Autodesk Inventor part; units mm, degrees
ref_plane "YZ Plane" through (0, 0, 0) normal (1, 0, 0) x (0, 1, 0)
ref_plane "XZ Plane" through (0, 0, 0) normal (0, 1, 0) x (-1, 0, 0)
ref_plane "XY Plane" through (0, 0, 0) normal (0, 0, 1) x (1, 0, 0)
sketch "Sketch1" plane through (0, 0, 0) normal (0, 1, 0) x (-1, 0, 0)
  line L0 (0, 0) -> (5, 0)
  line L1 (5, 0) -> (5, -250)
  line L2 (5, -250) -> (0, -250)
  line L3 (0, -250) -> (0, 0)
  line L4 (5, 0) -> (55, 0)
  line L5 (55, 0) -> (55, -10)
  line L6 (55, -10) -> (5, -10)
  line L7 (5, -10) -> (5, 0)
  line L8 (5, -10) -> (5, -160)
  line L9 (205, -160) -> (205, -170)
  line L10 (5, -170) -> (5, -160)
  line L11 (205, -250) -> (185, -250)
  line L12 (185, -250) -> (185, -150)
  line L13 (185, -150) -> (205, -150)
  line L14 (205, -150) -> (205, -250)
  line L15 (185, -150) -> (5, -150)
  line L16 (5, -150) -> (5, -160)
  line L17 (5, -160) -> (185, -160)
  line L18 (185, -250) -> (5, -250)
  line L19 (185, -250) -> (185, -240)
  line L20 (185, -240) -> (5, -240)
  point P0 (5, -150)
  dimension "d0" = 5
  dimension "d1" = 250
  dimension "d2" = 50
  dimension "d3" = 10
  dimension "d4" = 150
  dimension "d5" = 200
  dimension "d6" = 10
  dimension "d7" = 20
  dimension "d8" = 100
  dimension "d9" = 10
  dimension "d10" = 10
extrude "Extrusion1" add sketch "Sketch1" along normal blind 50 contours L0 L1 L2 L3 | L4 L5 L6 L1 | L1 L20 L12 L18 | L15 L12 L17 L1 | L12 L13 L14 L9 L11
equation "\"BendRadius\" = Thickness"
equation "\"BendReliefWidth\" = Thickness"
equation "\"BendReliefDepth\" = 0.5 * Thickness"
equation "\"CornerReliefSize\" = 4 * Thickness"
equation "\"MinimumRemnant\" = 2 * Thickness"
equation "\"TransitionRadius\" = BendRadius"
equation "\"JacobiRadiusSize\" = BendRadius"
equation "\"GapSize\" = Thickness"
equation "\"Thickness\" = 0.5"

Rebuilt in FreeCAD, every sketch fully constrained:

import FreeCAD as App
import Part
import Sketcher
from FreeCAD import Vector
Q = App.Units.Quantity


def add_polygon(sketch, points):
    """Adds a closed chain of lines whose ends are joined by coincident constraints."""
    first, n = sketch.GeometryCount, len(points)
    for a, b in zip(points, points[1:] + points[:1]):
        sketch.addGeometry(Part.LineSegment(App.Vector(*a, 0), App.Vector(*b, 0)), False)
    for i in range(n):
        sketch.addConstraint(Sketcher.Constraint("Coincident", first + i, 2, first + (i + 1) % n, 1))

doc = App.newDocument("Part")
body = doc.addObject("PartDesign::Body", "Body")

# Sketch on XZ plane
sketch1 = body.newObject("Sketcher::SketchObject", "Sketch")
sketch1.AttachmentSupport = (doc.getObject("XZ_Plane"), [""])
sketch1.MapMode = "FlatFace"
add_polygon(sketch1, [(0, 0), (0, -250), (-205, -250), (-205, -150), (-5, -150), (-5, -10), (-55, -10), (-55, 0)])  # lines 0-7
add_polygon(sketch1, [(-5, -160), (-185, -160), (-185, -240), (-5, -240)])  # lines 8-11
sketch1.addConstraint([
    Sketcher.Constraint("Vertical", 0),
    Sketcher.Constraint("Horizontal", 1),
    Sketcher.Constraint("Vertical", 2),
    Sketcher.Constraint("Horizontal", 3),
    Sketcher.Constraint("Vertical", 4),
    Sketcher.Constraint("Horizontal", 5),
    Sketcher.Constraint("Vertical", 6),
    Sketcher.Constraint("Horizontal", 7),
    Sketcher.Constraint("Horizontal", 8),
    Sketcher.Constraint("Vertical", 9),
    Sketcher.Constraint("Horizontal", 10),
    Sketcher.Constraint("Vertical", 11),
    Sketcher.Constraint("Coincident", 7, 2, -1, 1),
    Sketcher.Constraint("Vertical", 4, 2, 10, 2),
    Sketcher.Constraint("DistanceX", 3, 1, 3, 2, Q("200 mm")),
    Sketcher.Constraint("DistanceX", 5, 2, 5, 1, Q("50 mm")),
    Sketcher.Constraint("DistanceY", 0, 2, 0, 1, Q("250 mm")),
    Sketcher.Constraint("DistanceY", 2, 1, 2, 2, Q("100 mm")),
    Sketcher.Constraint("DistanceY", 6, 1, 6, 2, Q("10 mm")),
    Sketcher.Constraint("DistanceX", 3, 2, -1, 1, Q("5 mm")),
    Sketcher.Constraint("DistanceX", 2, 2, 8, 2, Q("20 mm")),
    Sketcher.Constraint("DistanceY", 8, 2, 2, 2, Q("10 mm")),
    Sketcher.Constraint("DistanceY", 1, 2, 9, 2, Q("10 mm")),
])
pad1 = body.newObject("PartDesign::Pad", "Pad")
pad1.Profile = sketch1
pad1.Length = 50
pad1.Reversed = True

doc.recompute()
